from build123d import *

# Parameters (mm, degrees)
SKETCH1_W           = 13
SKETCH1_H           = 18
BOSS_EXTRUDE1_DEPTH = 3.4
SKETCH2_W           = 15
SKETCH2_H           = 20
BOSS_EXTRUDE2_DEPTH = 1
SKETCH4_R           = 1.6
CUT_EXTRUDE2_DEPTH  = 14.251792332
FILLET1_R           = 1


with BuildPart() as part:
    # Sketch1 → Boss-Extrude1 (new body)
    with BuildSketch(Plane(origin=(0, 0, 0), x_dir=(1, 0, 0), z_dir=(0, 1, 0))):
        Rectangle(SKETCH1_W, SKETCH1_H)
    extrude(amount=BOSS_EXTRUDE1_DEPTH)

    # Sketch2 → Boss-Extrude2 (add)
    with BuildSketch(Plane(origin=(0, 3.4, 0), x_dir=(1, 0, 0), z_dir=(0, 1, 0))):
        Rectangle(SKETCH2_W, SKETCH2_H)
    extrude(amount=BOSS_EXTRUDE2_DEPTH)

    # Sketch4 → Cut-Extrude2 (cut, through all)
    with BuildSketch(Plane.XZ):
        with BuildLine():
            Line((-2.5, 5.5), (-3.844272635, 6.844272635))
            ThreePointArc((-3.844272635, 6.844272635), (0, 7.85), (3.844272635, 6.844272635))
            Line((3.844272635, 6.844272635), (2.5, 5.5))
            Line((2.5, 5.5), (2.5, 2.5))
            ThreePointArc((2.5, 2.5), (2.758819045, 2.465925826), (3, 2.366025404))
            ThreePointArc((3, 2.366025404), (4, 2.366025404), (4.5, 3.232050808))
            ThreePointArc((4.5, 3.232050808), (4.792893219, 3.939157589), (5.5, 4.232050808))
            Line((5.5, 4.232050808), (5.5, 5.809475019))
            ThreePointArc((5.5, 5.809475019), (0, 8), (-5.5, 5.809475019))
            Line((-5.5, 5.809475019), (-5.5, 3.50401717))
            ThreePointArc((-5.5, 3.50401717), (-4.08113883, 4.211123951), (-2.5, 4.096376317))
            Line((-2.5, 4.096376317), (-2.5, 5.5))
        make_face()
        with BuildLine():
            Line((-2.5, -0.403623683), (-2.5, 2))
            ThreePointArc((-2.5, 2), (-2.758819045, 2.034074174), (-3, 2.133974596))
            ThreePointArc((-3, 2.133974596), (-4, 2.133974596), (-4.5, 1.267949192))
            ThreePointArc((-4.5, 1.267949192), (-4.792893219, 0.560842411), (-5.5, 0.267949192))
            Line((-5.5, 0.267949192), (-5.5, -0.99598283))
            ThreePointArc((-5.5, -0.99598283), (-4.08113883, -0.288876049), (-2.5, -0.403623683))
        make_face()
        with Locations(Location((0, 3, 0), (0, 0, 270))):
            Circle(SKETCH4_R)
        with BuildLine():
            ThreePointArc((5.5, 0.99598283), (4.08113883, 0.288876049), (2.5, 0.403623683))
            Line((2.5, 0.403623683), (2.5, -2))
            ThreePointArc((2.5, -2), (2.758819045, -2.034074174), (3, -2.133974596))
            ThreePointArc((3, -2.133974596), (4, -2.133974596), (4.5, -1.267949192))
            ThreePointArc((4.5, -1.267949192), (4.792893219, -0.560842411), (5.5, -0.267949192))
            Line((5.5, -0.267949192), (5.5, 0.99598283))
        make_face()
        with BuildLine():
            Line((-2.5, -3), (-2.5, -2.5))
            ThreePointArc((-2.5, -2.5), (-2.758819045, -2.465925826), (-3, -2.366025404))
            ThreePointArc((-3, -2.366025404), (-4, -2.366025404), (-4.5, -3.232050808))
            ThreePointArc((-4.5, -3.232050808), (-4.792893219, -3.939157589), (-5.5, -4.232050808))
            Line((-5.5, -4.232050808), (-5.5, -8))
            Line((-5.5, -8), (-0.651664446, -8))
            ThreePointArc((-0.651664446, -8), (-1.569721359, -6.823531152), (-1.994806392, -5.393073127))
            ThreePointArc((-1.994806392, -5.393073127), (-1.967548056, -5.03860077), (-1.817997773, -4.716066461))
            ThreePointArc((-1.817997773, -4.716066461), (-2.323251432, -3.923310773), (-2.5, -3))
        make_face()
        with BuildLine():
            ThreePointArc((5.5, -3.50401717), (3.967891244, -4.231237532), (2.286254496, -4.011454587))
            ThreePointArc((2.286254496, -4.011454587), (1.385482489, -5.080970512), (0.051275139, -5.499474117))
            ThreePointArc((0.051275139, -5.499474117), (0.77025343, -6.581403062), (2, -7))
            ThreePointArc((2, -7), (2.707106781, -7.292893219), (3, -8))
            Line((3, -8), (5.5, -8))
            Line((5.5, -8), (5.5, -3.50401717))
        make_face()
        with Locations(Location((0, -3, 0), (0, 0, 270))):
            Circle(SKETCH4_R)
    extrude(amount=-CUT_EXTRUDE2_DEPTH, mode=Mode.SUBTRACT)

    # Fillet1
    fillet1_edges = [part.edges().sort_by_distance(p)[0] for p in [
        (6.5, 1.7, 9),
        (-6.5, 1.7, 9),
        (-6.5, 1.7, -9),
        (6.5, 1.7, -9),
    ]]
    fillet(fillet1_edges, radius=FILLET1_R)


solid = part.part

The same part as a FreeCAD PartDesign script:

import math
import FreeCAD as App
import Part
import Sketcher
Q = App.Units.Quantity


def edges_at(feature, points):
    """Names of the edges that pass closest to the given points."""
    edges = feature.Shape.Edges
    near = lambda p: min(range(len(edges)), key=lambda i: edges[i].distToShape(Part.Vertex(*p))[0])
    return sorted({f"Edge{near(p) + 1}" for p in points})

doc = App.newDocument("Part")
params = doc.addObject("Spreadsheet::Sheet", "Params")
for row, (alias, value) in enumerate([
    ("sketch1_width", "13 mm"),
    ("sketch1_height", "18 mm"),
    ("pad1_length", "3.4 mm"),
    ("sketch2_width", "15 mm"),
    ("sketch2_height", "20 mm"),
    ("pad2_length", "1 mm"),
    ("sketch3_radius", "1 mm"),
    ("sketch3_radius2", "8 mm"),
    ("sketch3_radius3", "3 mm"),
    ("sketch3_diameter", "3.2 mm"),
    ("sketch3_radius4", "2.5 mm"),
    ("fillet_radius", "1 mm"),
], start=1):
    params.set(f"A{row}", alias)
    params.set(f"B{row}", "=" + value)
    params.setAlias(f"B{row}", alias)

body = doc.addObject("PartDesign::Body", "Body")

sketch1 = body.newObject("Sketcher::SketchObject", "Sketch")
sketch1.AttachmentSupport = (doc.getObject("XZ_Plane"), [""])
sketch1.MapMode = "FlatFace"
sketch1.addGeometry(Part.LineSegment(App.Vector(-6, -9, 0), App.Vector(-6, 9, 0)), False)
sketch1.addGeometry(Part.LineSegment(App.Vector(-6, 9, 0), App.Vector(6, 9, 0)), False)
sketch1.addGeometry(Part.LineSegment(App.Vector(6, 9, 0), App.Vector(6, -9, 0)), False)
sketch1.addGeometry(Part.LineSegment(App.Vector(6, -9, 0), App.Vector(-6, -9, 0)), False)
sketch1.addConstraint(Sketcher.Constraint("Coincident", 0, 2, 1, 1))
sketch1.addConstraint(Sketcher.Constraint("Coincident", 1, 2, 2, 1))
sketch1.addConstraint(Sketcher.Constraint("Coincident", 2, 2, 3, 1))
sketch1.addConstraint(Sketcher.Constraint("Coincident", 3, 2, 0, 1))
sketch1.addConstraint(Sketcher.Constraint("Vertical", 0))
sketch1.addConstraint(Sketcher.Constraint("Horizontal", 1))
sketch1.addConstraint(Sketcher.Constraint("Vertical", 2))
sketch1.addConstraint(Sketcher.Constraint("Horizontal", 3))
sketch1.addConstraint(Sketcher.Constraint("Symmetric", 0, 2, 2, 2, -1, 1))
sketch1.addConstraint(Sketcher.Constraint("DistanceX", 1, 1, 1, 2, Q("13 mm")))
sketch1.addConstraint(Sketcher.Constraint("DistanceY", 0, 1, 0, 2, Q("18 mm")))
sketch1.setExpression("Constraints[9]", "Params.sketch1_width")
sketch1.setExpression("Constraints[10]", "Params.sketch1_height")
pad1 = body.newObject("PartDesign::Pad", "Pad")
pad1.Profile = sketch1
pad1.setExpression("Length", "Params.pad1_length")
pad1.Reversed = True

sketch2 = body.newObject("Sketcher::SketchObject", "Sketch001")
sketch2.AttachmentSupport = (doc.getObject("XZ_Plane"), [""])
sketch2.MapMode = "FlatFace"
sketch2.AttachmentOffset = App.Placement(App.Vector(0, 0, -3.4), App.Rotation())
sketch2.addGeometry(Part.LineSegment(App.Vector(-8, -10, 0), App.Vector(-8, 10, 0)), False)
sketch2.addGeometry(Part.LineSegment(App.Vector(-8, 10, 0), App.Vector(8, 10, 0)), False)
sketch2.addGeometry(Part.LineSegment(App.Vector(8, 10, 0), App.Vector(8, -10, 0)), False)
sketch2.addGeometry(Part.LineSegment(App.Vector(8, -10, 0), App.Vector(-8, -10, 0)), False)
sketch2.addConstraint(Sketcher.Constraint("Coincident", 0, 2, 1, 1))
sketch2.addConstraint(Sketcher.Constraint("Coincident", 1, 2, 2, 1))
sketch2.addConstraint(Sketcher.Constraint("Coincident", 2, 2, 3, 1))
sketch2.addConstraint(Sketcher.Constraint("Coincident", 3, 2, 0, 1))
sketch2.addConstraint(Sketcher.Constraint("Vertical", 0))
sketch2.addConstraint(Sketcher.Constraint("Horizontal", 1))
sketch2.addConstraint(Sketcher.Constraint("Vertical", 2))
sketch2.addConstraint(Sketcher.Constraint("Horizontal", 3))
sketch2.addConstraint(Sketcher.Constraint("Symmetric", 0, 2, 2, 2, -1, 1))
sketch2.addConstraint(Sketcher.Constraint("DistanceX", 1, 1, 1, 2, Q("15 mm")))
sketch2.addConstraint(Sketcher.Constraint("DistanceY", 0, 1, 0, 2, Q("20 mm")))
sketch2.setExpression("Constraints[9]", "Params.sketch2_width")
sketch2.setExpression("Constraints[10]", "Params.sketch2_height")
pad2 = body.newObject("PartDesign::Pad", "Pad001")
pad2.Profile = sketch2
pad2.setExpression("Length", "Params.pad2_length")
pad2.Reversed = True

sketch3 = body.newObject("Sketcher::SketchObject", "Sketch002")
sketch3.AttachmentSupport = (doc.getObject("XZ_Plane"), [""])
sketch3.MapMode = "FlatFace"
sketch3.addGeometry(Part.LineSegment(App.Vector(-2.5, 5.5, 0), App.Vector(-3.8, 6.8, 0)), False)
sketch3.addGeometry(Part.ArcOfCircle(Part.Circle(App.Vector(0, 0, 0), App.Vector(0, 0, 1), 7.8), math.radians(61), math.radians(119)), False)
sketch3.addGeometry(Part.LineSegment(App.Vector(3.8, 6.8, 0), App.Vector(2.5, 5.5, 0)), False)
sketch3.addGeometry(Part.LineSegment(App.Vector(2.5, 5.5, 0), App.Vector(2.5, 2.5, 0)), False)
sketch3.addGeometry(Part.ArcOfCircle(Part.Circle(App.Vector(2.5, 1.5, 0), App.Vector(0, 0, 1), 1), math.radians(60), math.radians(90)), False)
sketch3.addGeometry(Part.ArcOfCircle(Part.Circle(App.Vector(3.5, 3.2, 0), App.Vector(0, 0, 1), 1), math.radians(-120), math.radians(0)), False)
sketch3.addGeometry(Part.ArcOfCircle(Part.Circle(App.Vector(5.5, 3.2, 0), App.Vector(0, 0, 1), 1), math.radians(90), math.radians(180)), False)
sketch3.addGeometry(Part.LineSegment(App.Vector(5.5, 4.2, 0), App.Vector(5.5, 5.8, 0)), False)
sketch3.addGeometry(Part.ArcOfCircle(Part.Circle(App.Vector(0, 0, 0), App.Vector(0, 0, 1), 8), math.radians(47), math.radians(133)), False)
sketch3.addGeometry(Part.LineSegment(App.Vector(-5.5, 5.8, 0), App.Vector(-5.5, 3.5, 0)), False)
sketch3.addGeometry(Part.ArcOfCircle(Part.Circle(App.Vector(-3.5, 1.3, 0), App.Vector(0, 0, 1), 3), math.radians(71), math.radians(132)), False)
sketch3.addGeometry(Part.LineSegment(App.Vector(-2.5, 4.1, 0), App.Vector(-2.5, 5.5, 0)), False)
sketch3.addGeometry(Part.LineSegment(App.Vector(-2.5, -0.4, 0), App.Vector(-2.5, 2, 0)), False)
sketch3.addGeometry(Part.ArcOfCircle(Part.Circle(App.Vector(-2.5, 3, 0), App.Vector(0, 0, 1), 1), math.radians(-120), math.radians(-90)), False)
sketch3.addGeometry(Part.ArcOfCircle(Part.Circle(App.Vector(-3.5, 1.3, 0), App.Vector(0, 0, 1), 1), math.radians(60), math.radians(180)), False)
sketch3.addGeometry(Part.ArcOfCircle(Part.Circle(App.Vector(-5.5, 1.3, 0), App.Vector(0, 0, 1), 1), math.radians(-90), math.radians(0)), False)
sketch3.addGeometry(Part.LineSegment(App.Vector(-5.5, 0.3, 0), App.Vector(-5.5, -1, 0)), False)
sketch3.addGeometry(Part.ArcOfCircle(Part.Circle(App.Vector(-3.5, -3.2, 0), App.Vector(0, 0, 1), 3), math.radians(71), math.radians(132)), False)
sketch3.addGeometry(Part.Circle(App.Vector(0, 3, 0), App.Vector(0, 0, 1), 1.6), False)
sketch3.addGeometry(Part.ArcOfCircle(Part.Circle(App.Vector(3.5, 3.2, 0), App.Vector(0, 0, 1), 3), math.radians(-109), math.radians(-48)), False)
sketch3.addGeometry(Part.LineSegment(App.Vector(2.5, 0.4, 0), App.Vector(2.5, -2, 0)), False)
sketch3.addGeometry(Part.ArcOfCircle(Part.Circle(App.Vector(2.5, -3, 0), App.Vector(0, 0, 1), 1), math.radians(60), math.radians(90)), False)
sketch3.addGeometry(Part.ArcOfCircle(Part.Circle(App.Vector(3.5, -1.3, 0), App.Vector(0, 0, 1), 1), math.radians(-120), math.radians(0)), False)
sketch3.addGeometry(Part.ArcOfCircle(Part.Circle(App.Vector(5.5, -1.3, 0), App.Vector(0, 0, 1), 1), math.radians(90), math.radians(180)), False)
sketch3.addGeometry(Part.LineSegment(App.Vector(5.5, -0.3, 0), App.Vector(5.5, 1, 0)), False)
sketch3.addGeometry(Part.LineSegment(App.Vector(-2.5, -3, 0), App.Vector(-2.5, -2.5, 0)), False)
sketch3.addGeometry(Part.ArcOfCircle(Part.Circle(App.Vector(-2.5, -1.5, 0), App.Vector(0, 0, 1), 1), math.radians(-120), math.radians(-90)), False)
sketch3.addGeometry(Part.ArcOfCircle(Part.Circle(App.Vector(-3.5, -3.2, 0), App.Vector(0, 0, 1), 1), math.radians(60), math.radians(180)), False)
sketch3.addGeometry(Part.ArcOfCircle(Part.Circle(App.Vector(-5.5, -3.2, 0), App.Vector(0, 0, 1), 1), math.radians(-90), math.radians(0)), False)
sketch3.addGeometry(Part.LineSegment(App.Vector(-5.5, -4.2, 0), App.Vector(-5.5, -8, 0)), False)
sketch3.addGeometry(Part.LineSegment(App.Vector(-5.5, -8, 0), App.Vector(-0.7, -8, 0)), False)
sketch3.addGeometry(Part.ArcOfCircle(Part.Circle(App.Vector(2, -5, 0), App.Vector(0, 0, 1), 4), math.radians(-174), math.radians(-131)), False)
sketch3.addGeometry(Part.ArcOfCircle(Part.Circle(App.Vector(-1, -5.3, 0), App.Vector(0, 0, 1), 1), math.radians(145), math.radians(186)), False)
sketch3.addGeometry(Part.ArcOfCircle(Part.Circle(App.Vector(0, -3, 0), App.Vector(0, 0, 1), 2.5), math.radians(-180), math.radians(-137)), False)
sketch3.addGeometry(Part.ArcOfCircle(Part.Circle(App.Vector(3.5, -1.3, 0), App.Vector(0, 0, 1), 3), math.radians(-114), math.radians(-48)), False)
sketch3.addGeometry(Part.ArcOfCircle(Part.Circle(App.Vector(0, -3, 0), App.Vector(0, 0, 1), 2.5), math.radians(-89), math.radians(-24)), False)
sketch3.addGeometry(Part.ArcOfCircle(Part.Circle(App.Vector(2, -5, 0), App.Vector(0, 0, 1), 2), math.radians(-165), math.radians(-90)), False)
sketch3.addGeometry(Part.ArcOfCircle(Part.Circle(App.Vector(2, -8, 0), App.Vector(0, 0, 1), 1), math.radians(0), math.radians(90)), False)
sketch3.addGeometry(Part.LineSegment(App.Vector(3, -8, 0), App.Vector(5.5, -8, 0)), False)
sketch3.addGeometry(Part.LineSegment(App.Vector(5.5, -8, 0), App.Vector(5.5, -3.5, 0)), False)
sketch3.addGeometry(Part.Circle(App.Vector(0, -3, 0), App.Vector(0, 0, 1), 1.6), False)
sketch3.addConstraint(Sketcher.Constraint("Coincident", 0, 2, 1, 2))
sketch3.addConstraint(Sketcher.Constraint("Coincident", 1, 1, 2, 1))
sketch3.addConstraint(Sketcher.Constraint("Coincident", 2, 2, 3, 1))
sketch3.addConstraint(Sketcher.Constraint("Coincident", 3, 2, 4, 2))
sketch3.addConstraint(Sketcher.Constraint("Tangent", 4, 1, 5, 1))
sketch3.addConstraint(Sketcher.Constraint("Tangent", 5, 2, 6, 2))
sketch3.addConstraint(Sketcher.Constraint("Coincident", 6, 1, 7, 1))
sketch3.addConstraint(Sketcher.Constraint("Coincident", 7, 2, 8, 1))
sketch3.addConstraint(Sketcher.Constraint("Coincident", 8, 2, 9, 1))
sketch3.addConstraint(Sketcher.Constraint("Coincident", 9, 2, 10, 2))
sketch3.addConstraint(Sketcher.Constraint("Coincident", 10, 1, 11, 1))
sketch3.addConstraint(Sketcher.Constraint("Coincident", 11, 2, 0, 1))
sketch3.addConstraint(Sketcher.Constraint("Coincident", 12, 2, 13, 2))
sketch3.addConstraint(Sketcher.Constraint("Tangent", 13, 1, 14, 1))
sketch3.addConstraint(Sketcher.Constraint("Tangent", 14, 2, 15, 2))
sketch3.addConstraint(Sketcher.Constraint("Coincident", 15, 1, 16, 1))
sketch3.addConstraint(Sketcher.Constraint("Coincident", 16, 2, 17, 2))
sketch3.addConstraint(Sketcher.Constraint("Coincident", 17, 1, 12, 1))
sketch3.addConstraint(Sketcher.Constraint("Coincident", 19, 1, 20, 1))
sketch3.addConstraint(Sketcher.Constraint("Coincident", 20, 2, 21, 2))
sketch3.addConstraint(Sketcher.Constraint("Tangent", 21, 1, 22, 1))
sketch3.addConstraint(Sketcher.Constraint("Tangent", 22, 2, 23, 2))
sketch3.addConstraint(Sketcher.Constraint("Coincident", 23, 1, 24, 1))
sketch3.addConstraint(Sketcher.Constraint("Coincident", 24, 2, 19, 2))
sketch3.addConstraint(Sketcher.Constraint("Coincident", 25, 2, 26, 2))
sketch3.addConstraint(Sketcher.Constraint("Tangent", 26, 1, 27, 1))
sketch3.addConstraint(Sketcher.Constraint("Tangent", 27, 2, 28, 2))
sketch3.addConstraint(Sketcher.Constraint("Coincident", 28, 1, 29, 1))
sketch3.addConstraint(Sketcher.Constraint("Coincident", 29, 2, 30, 1))
sketch3.addConstraint(Sketcher.Constraint("Coincident", 30, 2, 31, 2))
sketch3.addConstraint(Sketcher.Constraint("Tangent", 31, 1, 32, 2))
sketch3.addConstraint(Sketcher.Constraint("Coincident", 32, 1, 33, 2))
sketch3.addConstraint(Sketcher.Constraint("Tangent", 33, 1, 25, 1))
sketch3.addConstraint(Sketcher.Constraint("Coincident", 34, 1, 35, 2))
sketch3.addConstraint(Sketcher.Constraint("Coincident", 35, 1, 36, 1))
sketch3.addConstraint(Sketcher.Constraint("Tangent", 36, 2, 37, 2))
sketch3.addConstraint(Sketcher.Constraint("Coincident", 37, 1, 38, 1))
sketch3.addConstraint(Sketcher.Constraint("Coincident", 38, 2, 39, 1))
sketch3.addConstraint(Sketcher.Constraint("Coincident", 39, 2, 34, 2))
sketch3.addConstraint(Sketcher.Constraint("Vertical", 3))
sketch3.addConstraint(Sketcher.Constraint("Vertical", 7))
sketch3.addConstraint(Sketcher.Constraint("Vertical", 9))
sketch3.addConstraint(Sketcher.Constraint("Vertical", 11))
sketch3.addConstraint(Sketcher.Constraint("Vertical", 12))
sketch3.addConstraint(Sketcher.Constraint("Vertical", 16))
sketch3.addConstraint(Sketcher.Constraint("Vertical", 20))
sketch3.addConstraint(Sketcher.Constraint("Vertical", 24))
sketch3.addConstraint(Sketcher.Constraint("Vertical", 25))
sketch3.addConstraint(Sketcher.Constraint("Vertical", 29))
sketch3.addConstraint(Sketcher.Constraint("Horizontal", 30))
sketch3.addConstraint(Sketcher.Constraint("Horizontal", 38))
sketch3.addConstraint(Sketcher.Constraint("Vertical", 39))
sketch3.addConstraint(Sketcher.Constraint("Coincident", 1, 3, -1, 1))
sketch3.addConstraint(Sketcher.Constraint("Coincident", 8, 3, -1, 1))
sketch3.addConstraint(Sketcher.Constraint("Coincident", 14, 3, 10, 3))
sketch3.addConstraint(Sketcher.Constraint("Coincident", 19, 3, 5, 3))
sketch3.addConstraint(Sketcher.Constraint("Coincident", 27, 3, 17, 3))
sketch3.addConstraint(Sketcher.Constraint("Coincident", 34, 3, 22, 3))
sketch3.addConstraint(Sketcher.Constraint("Coincident", 35, 3, 33, 3))
sketch3.addConstraint(Sketcher.Constraint("Coincident", 36, 3, 31, 3))
sketch3.addConstraint(Sketcher.Constraint("Coincident", 40, 3, 33, 3))
sketch3.addConstraint(Sketcher.Constraint("Equal", 4, 5))
sketch3.addConstraint(Sketcher.Constraint("Equal", 5, 6))
sketch3.addConstraint(Sketcher.Constraint("Equal", 6, 13))
sketch3.addConstraint(Sketcher.Constraint("Equal", 13, 14))
sketch3.addConstraint(Sketcher.Constraint("Equal", 14, 15))
sketch3.addConstraint(Sketcher.Constraint("Equal", 10, 17))
sketch3.addConstraint(Sketcher.Constraint("Equal", 17, 19))
sketch3.addConstraint(Sketcher.Constraint("Equal", 15, 21))
sketch3.addConstraint(Sketcher.Constraint("Equal", 21, 22))
sketch3.addConstraint(Sketcher.Constraint("Equal", 22, 23))
sketch3.addConstraint(Sketcher.Constraint("Equal", 23, 26))
sketch3.addConstraint(Sketcher.Constraint("Equal", 26, 27))
sketch3.addConstraint(Sketcher.Constraint("Equal", 27, 28))
sketch3.addConstraint(Sketcher.Constraint("Equal", 28, 32))
sketch3.addConstraint(Sketcher.Constraint("Equal", 19, 34))
sketch3.addConstraint(Sketcher.Constraint("Equal", 33, 35))
sketch3.addConstraint(Sketcher.Constraint("Equal", 32, 37))
sketch3.addConstraint(Sketcher.Constraint("Equal", 18, 40))
sketch3.addConstraint(Sketcher.Constraint("Symmetric", 5, 3, 17, 3, -1, 1))
sketch3.addConstraint(Sketcher.Constraint("Symmetric", 13, 3, 21, 3, -1, 1))
sketch3.addConstraint(Sketcher.Constraint("Symmetric", 15, 3, 23, 3, -1, 1))
sketch3.addConstraint(Sketcher.Constraint("Symmetric", 18, 3, 33, 3, -1, 1))
sketch3.addConstraint(Sketcher.Constraint("Symmetric", 3, 2, 25, 2, -1, 1))
sketch3.addConstraint(Sketcher.Constraint("Symmetric", 6, 1, 28, 1, -1, 1))
sketch3.addConstraint(Sketcher.Constraint("Symmetric", 2, 2, 11, 2, -2))
sketch3.addConstraint(Sketcher.Constraint("Symmetric", 29, 2, 38, 2, -2))
sketch3.addConstraint(Sketcher.Constraint("PointOnObject", 18, 3, -2))
sketch3.addConstraint(Sketcher.Constraint("Perpendicular", 0, 2))
sketch3.addConstraint(Sketcher.Constraint("Horizontal", 5, 3, 6, 3))
sketch3.addConstraint(Sketcher.Constraint("Horizontal", 14, 3, 15, 3))
sketch3.addConstraint(Sketcher.Constraint("Horizontal", 13, 3, 18, 3))
sketch3.addConstraint(Sketcher.Constraint("Horizontal", 0, 2, 1, 1))
sketch3.addConstraint(Sketcher.Constraint("Horizontal", 7, 2, 8, 2))
sketch3.addConstraint(Sketcher.Constraint("Horizontal", 37, 3, 29, 2))
sketch3.addConstraint(Sketcher.Constraint("Vertical", 14, 3, 17, 3))
sketch3.addConstraint(Sketcher.Constraint("Vertical", 4, 3, 21, 3))
sketch3.addConstraint(Sketcher.Constraint("Vertical", 36, 3, 37, 3))
sketch3.addConstraint(Sketcher.Constraint("Vertical", 21, 3, 2, 2))
sketch3.addConstraint(Sketcher.Constraint("Vertical", 23, 3, 6, 1))
sketch3.addConstraint(Sketcher.Constraint("Vertical", 11, 2, 12, 2))
sketch3.addConstraint(Sketcher.Constraint("Vertical", 9, 2, 15, 1))
sketch3.addConstraint(Sketcher.Constraint("Vertical", 3, 2, 19, 1))
sketch3.addConstraint(Sketcher.Constraint("Vertical", 7, 2, 23, 1))
sketch3.addConstraint(Sketcher.Constraint("Vertical", 21, 1, 37, 1))
sketch3.addConstraint(Sketcher.Constraint("Radius", 4, Q("1 mm")))
sketch3.addConstraint(Sketcher.Constraint("Radius", 8, Q("8 mm")))
sketch3.addConstraint(Sketcher.Constraint("Radius", 10, Q("3 mm")))
sketch3.addConstraint(Sketcher.Constraint("Diameter", 18, Q("3.2 mm")))
sketch3.addConstraint(Sketcher.Constraint("Radius", 33, Q("2.5 mm")))
sketch3.addConstraint(Sketcher.Constraint("DistanceY", 3, 2, 3, 1, Q("3 mm")))
sketch3.addConstraint(Sketcher.Constraint("Radius", 1, Q("7.85 mm")))
sketch3.addConstraint(Sketcher.Constraint("DistanceX", 38, 1, 38, 2, Q("2.5 mm")))
sketch3.addConstraint(Sketcher.Constraint("DistanceY", 25, 1, 25, 2, Q("0.5 mm")))
sketch3.addConstraint(Sketcher.Constraint("DistanceY", -1, 1, 13, 3, Q("3 mm")))
sketch3.addConstraint(Sketcher.Constraint("DistanceX", 32, 3, -1, 1, Q("1 mm")))
sketch3.addConstraint(Sketcher.Constraint("DistanceY", 37, 3, -1, 1, Q("8 mm")))
sketch3.addConstraint(Sketcher.Constraint("Radius", 31, Q("4.015662 mm")))
sketch3.addConstraint(Sketcher.Constraint("Radius", 36, Q("2.015662 mm")))
sketch3.setExpression("Constraints[105]", "Params.sketch3_radius")
sketch3.setExpression("Constraints[106]", "Params.sketch3_radius2")
sketch3.setExpression("Constraints[107]", "Params.sketch3_radius3")
sketch3.setExpression("Constraints[108]", "Params.sketch3_diameter")
sketch3.setExpression("Constraints[109]", "Params.sketch3_radius4")
pocket1 = body.newObject("PartDesign::Pocket", "Pocket")
pocket1.Profile = sketch3
pocket1.Type = "ThroughAll"
doc.recompute()

fillet = body.newObject("PartDesign::Fillet", "Fillet")
fillet.Base = (pocket1, edges_at(pocket1, [
    (6.5, 1.7, 9),
    (-6.5, 1.7, 9),
    (-6.5, 1.7, -9),
    (6.5, 1.7, -9),
]))
fillet.setExpression("Radius", "Params.fillet_radius")

doc.recompute()
